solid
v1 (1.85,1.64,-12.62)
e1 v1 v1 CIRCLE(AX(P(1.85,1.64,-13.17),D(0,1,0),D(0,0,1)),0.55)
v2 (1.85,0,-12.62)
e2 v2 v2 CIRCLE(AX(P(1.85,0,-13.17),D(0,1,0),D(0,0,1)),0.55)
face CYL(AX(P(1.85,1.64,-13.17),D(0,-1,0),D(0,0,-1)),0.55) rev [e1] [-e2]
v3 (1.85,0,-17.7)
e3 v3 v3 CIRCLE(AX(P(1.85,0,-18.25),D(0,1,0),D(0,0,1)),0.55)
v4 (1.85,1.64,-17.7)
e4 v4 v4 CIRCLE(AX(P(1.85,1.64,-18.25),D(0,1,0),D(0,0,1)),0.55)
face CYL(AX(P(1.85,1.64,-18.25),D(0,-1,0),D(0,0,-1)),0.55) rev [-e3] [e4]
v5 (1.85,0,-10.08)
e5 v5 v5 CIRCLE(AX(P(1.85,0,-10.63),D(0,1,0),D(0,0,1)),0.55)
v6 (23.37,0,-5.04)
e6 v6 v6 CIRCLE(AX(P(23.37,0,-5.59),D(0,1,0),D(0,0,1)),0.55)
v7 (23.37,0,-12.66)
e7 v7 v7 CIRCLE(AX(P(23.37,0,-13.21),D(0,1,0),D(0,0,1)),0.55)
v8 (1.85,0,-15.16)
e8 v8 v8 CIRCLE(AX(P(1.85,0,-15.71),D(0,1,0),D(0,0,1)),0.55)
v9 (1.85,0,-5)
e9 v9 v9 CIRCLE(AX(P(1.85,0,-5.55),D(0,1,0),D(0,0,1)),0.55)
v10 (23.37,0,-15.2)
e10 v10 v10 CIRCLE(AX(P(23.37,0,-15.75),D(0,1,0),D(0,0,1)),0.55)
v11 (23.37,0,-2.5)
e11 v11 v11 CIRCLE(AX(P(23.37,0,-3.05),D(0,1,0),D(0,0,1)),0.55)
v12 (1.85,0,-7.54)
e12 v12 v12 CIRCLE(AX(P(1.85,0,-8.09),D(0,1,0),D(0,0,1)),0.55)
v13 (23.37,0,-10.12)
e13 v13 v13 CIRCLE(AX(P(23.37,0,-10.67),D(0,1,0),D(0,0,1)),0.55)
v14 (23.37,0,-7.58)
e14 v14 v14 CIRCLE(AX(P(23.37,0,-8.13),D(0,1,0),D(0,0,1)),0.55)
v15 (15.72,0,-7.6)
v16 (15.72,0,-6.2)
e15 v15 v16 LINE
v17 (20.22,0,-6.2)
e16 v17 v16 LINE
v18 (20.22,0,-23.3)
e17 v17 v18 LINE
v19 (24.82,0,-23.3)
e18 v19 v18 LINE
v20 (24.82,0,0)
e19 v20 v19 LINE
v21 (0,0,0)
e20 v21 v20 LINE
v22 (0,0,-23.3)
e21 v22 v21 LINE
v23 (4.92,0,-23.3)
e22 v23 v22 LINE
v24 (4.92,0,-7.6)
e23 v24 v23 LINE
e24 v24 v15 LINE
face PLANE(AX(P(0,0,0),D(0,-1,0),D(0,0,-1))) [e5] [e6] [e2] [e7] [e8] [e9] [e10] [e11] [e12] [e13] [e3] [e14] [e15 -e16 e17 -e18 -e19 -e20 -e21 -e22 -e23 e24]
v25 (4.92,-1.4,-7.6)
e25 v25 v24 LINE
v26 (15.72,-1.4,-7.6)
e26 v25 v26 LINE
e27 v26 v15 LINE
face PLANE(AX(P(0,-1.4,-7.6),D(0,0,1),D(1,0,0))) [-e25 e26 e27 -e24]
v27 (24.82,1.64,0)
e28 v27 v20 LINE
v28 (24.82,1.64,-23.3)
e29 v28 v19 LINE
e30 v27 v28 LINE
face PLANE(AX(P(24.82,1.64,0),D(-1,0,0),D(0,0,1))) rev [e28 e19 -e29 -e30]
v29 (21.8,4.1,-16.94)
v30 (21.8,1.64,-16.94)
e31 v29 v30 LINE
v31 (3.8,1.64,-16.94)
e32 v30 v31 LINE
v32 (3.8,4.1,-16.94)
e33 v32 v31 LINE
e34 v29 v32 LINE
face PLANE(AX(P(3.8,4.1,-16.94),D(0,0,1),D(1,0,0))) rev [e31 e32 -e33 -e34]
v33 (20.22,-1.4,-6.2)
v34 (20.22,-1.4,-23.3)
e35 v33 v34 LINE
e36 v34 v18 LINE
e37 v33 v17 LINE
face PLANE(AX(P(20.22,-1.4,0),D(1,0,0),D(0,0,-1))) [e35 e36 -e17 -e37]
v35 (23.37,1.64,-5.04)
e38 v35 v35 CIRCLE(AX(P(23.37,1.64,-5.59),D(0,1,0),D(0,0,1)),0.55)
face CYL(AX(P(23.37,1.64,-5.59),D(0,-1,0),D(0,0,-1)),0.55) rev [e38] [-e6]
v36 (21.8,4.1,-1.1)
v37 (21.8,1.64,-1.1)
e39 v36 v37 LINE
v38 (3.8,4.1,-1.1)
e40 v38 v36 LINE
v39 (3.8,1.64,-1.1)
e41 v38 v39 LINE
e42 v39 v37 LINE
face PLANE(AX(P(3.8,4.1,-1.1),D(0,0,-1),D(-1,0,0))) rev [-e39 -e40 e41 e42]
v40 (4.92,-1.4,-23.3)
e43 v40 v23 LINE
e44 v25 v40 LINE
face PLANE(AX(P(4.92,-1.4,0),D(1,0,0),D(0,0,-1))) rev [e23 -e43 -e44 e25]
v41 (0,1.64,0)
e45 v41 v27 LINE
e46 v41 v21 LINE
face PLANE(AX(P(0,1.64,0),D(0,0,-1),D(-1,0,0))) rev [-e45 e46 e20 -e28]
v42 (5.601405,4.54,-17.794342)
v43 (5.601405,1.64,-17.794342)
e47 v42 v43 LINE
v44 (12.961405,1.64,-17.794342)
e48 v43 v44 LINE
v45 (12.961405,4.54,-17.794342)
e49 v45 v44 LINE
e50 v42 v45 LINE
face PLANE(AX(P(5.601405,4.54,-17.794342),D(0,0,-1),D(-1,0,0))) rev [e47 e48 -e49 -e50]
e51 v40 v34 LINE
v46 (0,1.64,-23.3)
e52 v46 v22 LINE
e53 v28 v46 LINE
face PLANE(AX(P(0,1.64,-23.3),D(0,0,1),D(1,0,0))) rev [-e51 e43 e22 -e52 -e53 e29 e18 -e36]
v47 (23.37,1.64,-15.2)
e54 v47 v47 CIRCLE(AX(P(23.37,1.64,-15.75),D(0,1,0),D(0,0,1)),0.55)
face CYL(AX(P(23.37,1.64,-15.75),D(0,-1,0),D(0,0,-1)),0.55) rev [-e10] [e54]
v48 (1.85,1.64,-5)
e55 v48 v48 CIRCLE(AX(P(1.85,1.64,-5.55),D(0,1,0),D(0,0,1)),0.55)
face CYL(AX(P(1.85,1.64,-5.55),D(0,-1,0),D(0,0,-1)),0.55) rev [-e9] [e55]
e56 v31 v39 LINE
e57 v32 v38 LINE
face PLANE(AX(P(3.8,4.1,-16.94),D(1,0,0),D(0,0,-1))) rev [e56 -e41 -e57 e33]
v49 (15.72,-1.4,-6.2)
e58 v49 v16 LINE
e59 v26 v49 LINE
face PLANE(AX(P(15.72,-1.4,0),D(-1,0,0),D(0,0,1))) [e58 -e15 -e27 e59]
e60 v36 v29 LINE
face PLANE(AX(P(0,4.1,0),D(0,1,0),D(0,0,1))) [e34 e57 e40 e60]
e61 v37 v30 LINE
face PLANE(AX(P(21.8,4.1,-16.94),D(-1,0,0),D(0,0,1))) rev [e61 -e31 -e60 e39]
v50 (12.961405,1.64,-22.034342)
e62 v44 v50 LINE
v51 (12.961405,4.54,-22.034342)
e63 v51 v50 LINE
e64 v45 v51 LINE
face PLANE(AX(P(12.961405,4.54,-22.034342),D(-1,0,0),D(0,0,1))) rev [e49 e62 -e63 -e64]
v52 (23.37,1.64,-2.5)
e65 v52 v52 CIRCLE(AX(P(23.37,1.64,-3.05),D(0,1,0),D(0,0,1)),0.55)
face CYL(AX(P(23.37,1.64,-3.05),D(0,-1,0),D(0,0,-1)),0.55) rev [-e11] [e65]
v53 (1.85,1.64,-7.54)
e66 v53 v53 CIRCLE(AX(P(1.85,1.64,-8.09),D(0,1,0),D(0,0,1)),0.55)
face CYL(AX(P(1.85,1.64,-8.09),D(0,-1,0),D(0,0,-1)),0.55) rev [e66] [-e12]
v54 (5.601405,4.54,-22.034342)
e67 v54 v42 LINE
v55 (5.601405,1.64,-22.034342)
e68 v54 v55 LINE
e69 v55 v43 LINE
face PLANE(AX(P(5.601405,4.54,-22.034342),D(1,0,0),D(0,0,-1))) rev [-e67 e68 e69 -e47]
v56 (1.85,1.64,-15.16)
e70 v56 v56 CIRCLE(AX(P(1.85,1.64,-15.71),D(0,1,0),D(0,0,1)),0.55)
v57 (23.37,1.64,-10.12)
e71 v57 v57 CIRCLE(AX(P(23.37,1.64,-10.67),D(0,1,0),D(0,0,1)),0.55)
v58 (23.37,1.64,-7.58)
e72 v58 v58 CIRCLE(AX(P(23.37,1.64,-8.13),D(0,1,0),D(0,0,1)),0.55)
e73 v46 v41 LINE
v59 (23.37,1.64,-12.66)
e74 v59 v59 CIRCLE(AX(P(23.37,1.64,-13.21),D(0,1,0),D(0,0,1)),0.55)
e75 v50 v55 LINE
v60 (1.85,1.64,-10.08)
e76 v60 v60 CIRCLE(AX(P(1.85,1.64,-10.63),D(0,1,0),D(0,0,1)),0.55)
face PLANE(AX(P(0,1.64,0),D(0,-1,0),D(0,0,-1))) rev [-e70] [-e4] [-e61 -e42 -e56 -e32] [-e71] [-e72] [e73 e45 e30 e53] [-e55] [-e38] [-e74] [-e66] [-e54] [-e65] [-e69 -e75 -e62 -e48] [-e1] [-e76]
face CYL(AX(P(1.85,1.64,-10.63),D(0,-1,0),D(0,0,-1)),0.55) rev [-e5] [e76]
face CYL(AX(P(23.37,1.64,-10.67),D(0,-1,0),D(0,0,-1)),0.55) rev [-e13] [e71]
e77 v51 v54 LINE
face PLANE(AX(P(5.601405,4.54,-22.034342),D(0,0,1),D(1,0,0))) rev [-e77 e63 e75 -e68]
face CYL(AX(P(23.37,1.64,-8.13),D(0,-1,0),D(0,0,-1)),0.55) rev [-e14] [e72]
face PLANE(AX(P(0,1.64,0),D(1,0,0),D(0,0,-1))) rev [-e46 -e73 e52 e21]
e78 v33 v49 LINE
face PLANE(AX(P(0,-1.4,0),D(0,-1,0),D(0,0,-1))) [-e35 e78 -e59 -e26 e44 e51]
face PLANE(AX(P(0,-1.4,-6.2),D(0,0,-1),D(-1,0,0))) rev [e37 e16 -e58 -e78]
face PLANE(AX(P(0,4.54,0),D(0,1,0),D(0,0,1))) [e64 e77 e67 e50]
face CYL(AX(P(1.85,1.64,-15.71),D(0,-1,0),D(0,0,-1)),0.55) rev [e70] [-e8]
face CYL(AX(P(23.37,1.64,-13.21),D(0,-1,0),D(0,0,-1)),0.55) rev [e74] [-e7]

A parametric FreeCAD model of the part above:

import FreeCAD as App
import Part
import Sketcher

V = App.Vector


def add_polygon(sketch, points):
    """Adds a closed chain of lines whose ends are joined by coincident constraints."""
    first, n = sketch.GeometryCount, len(points)
    for a, b in zip(points, points[1:] + points[:1]):
        sketch.addGeometry(Part.LineSegment(App.Vector(*a, 0), App.Vector(*b, 0)), False)
    for i in range(n):
        sketch.addConstraint(Sketcher.Constraint("Coincident", first + i, 2, first + (i + 1) % n, 1))

doc = App.newDocument("Part")
params = doc.addObject("Spreadsheet::Sheet", "Params")
for row, (alias, value) in enumerate([
    ("sketch1_diameter", "1.1 mm"),
    ("sketch1_height", "23.3 mm"),
    ("sketch1_width", "24.82 mm"),
    ("pad1_length", "1.64 mm"),
    ("sketch2_width", "18 mm"),
    ("sketch2_height", "15.84 mm"),
    ("pad2_length", "2.46 mm"),
    ("sketch3_width", "7.36 mm"),
    ("sketch3_height", "4.24 mm"),
    ("pad3_length", "2.9 mm"),
    ("sketch4_width", "15.3 mm"),
    ("sketch4_width2", "4.5 mm"),
    ("sketch4_height", "15.7 mm"),
    ("sketch4_height2", "17.1 mm"),
    ("pad4_length", "1.4 mm"),
], start=1):
    params.set(f"A{row}", alias)
    params.set(f"B{row}", "=" + value)
    params.setAlias(f"B{row}", alias)

body = doc.addObject("PartDesign::Body", "Body")

# Sketch on XZ plane
sketch1 = body.newObject("Sketcher::SketchObject", "Sketch")
sketch1.AttachmentSupport = (doc.getObject("XZ_Plane"), [""])
sketch1.MapMode = "FlatFace"
add_polygon(sketch1, [(0, -23.3), (0, 0), (24.8, 0), (24.8, -23.3)])  # lines 0-3
sketch1.addGeometry(Part.Circle(V(1.9, -5.5, 0), V(0, 0, 1), 0.6), False)  # 4
sketch1.addGeometry(Part.Circle(V(1.9, -8.1, 0), V(0, 0, 1), 0.6), False)  # 5
sketch1.addGeometry(Part.Circle(V(1.9, -10.6, 0), V(0, 0, 1), 0.6), False)  # 6
sketch1.addGeometry(Part.Circle(V(23.4, -3, 0), V(0, 0, 1), 0.6), False)  # 7
sketch1.addGeometry(Part.Circle(V(23.4, -5.6, 0), V(0, 0, 1), 0.6), False)  # 8
sketch1.addGeometry(Part.Circle(V(23.4, -8.1, 0), V(0, 0, 1), 0.6), False)  # 9
sketch1.addGeometry(Part.Circle(V(1.9, -13.2, 0), V(0, 0, 1), 0.6), False)  # 10
sketch1.addGeometry(Part.Circle(V(1.9, -15.7, 0), V(0, 0, 1), 0.6), False)  # 11
sketch1.addGeometry(Part.Circle(V(1.9, -18.2, 0), V(0, 0, 1), 0.6), False)  # 12
sketch1.addGeometry(Part.Circle(V(23.4, -10.7, 0), V(0, 0, 1), 0.6), False)  # 13
sketch1.addGeometry(Part.Circle(V(23.4, -13.2, 0), V(0, 0, 1), 0.6), False)  # 14
sketch1.addGeometry(Part.Circle(V(23.4, -15.8, 0), V(0, 0, 1), 0.6), False)  # 15
sketch1.addConstraint([
    Sketcher.Constraint("Vertical", 0),
    Sketcher.Constraint("Horizontal", 1),
    Sketcher.Constraint("Vertical", 2),
    Sketcher.Constraint("Horizontal", 3),
    Sketcher.Constraint("Coincident", 0, 2, -1, 1),
    Sketcher.Constraint("Equal", 4, 5),
    Sketcher.Constraint("Equal", 5, 6),
    Sketcher.Constraint("Equal", 6, 7),
    Sketcher.Constraint("Equal", 7, 8),
    Sketcher.Constraint("Equal", 8, 9),
    Sketcher.Constraint("Equal", 9, 10),
    Sketcher.Constraint("Equal", 10, 11),
    Sketcher.Constraint("Equal", 11, 12),
    Sketcher.Constraint("Equal", 12, 13),
    Sketcher.Constraint("Equal", 13, 14),
    Sketcher.Constraint("Equal", 14, 15),
    Sketcher.Constraint("Vertical", 4, 3, 5, 3),
    Sketcher.Constraint("Vertical", 5, 3, 6, 3),
    Sketcher.Constraint("Vertical", 7, 3, 8, 3),
    Sketcher.Constraint("Vertical", 8, 3, 9, 3),
    Sketcher.Constraint("Vertical", 6, 3, 10, 3),
    Sketcher.Constraint("Vertical", 10, 3, 11, 3),
    Sketcher.Constraint("Vertical", 11, 3, 12, 3),
    Sketcher.Constraint("Vertical", 9, 3, 13, 3),
    Sketcher.Constraint("Vertical", 13, 3, 14, 3),
    Sketcher.Constraint("Vertical", 14, 3, 15, 3),
    Sketcher.Constraint("Diameter", 4, 1.1),
    Sketcher.Constraint("DistanceY", 0, 1, 0, 2, 23.3),
    Sketcher.Constraint("DistanceX", 1, 1, 1, 2, 24.82),
    Sketcher.Constraint("DistanceY", 4, 3, 7, 3, 2.5),
    Sketcher.Constraint("DistanceY", 5, 3, 8, 3, 2.5),
    Sketcher.Constraint("DistanceY", 6, 3, 9, 3, 2.5),
    Sketcher.Constraint("DistanceY", 12, 3, 4, 3, 12.7),
    Sketcher.Constraint("DistanceY", 10, 3, 13, 3, 2.5),
    Sketcher.Constraint("DistanceY", 15, 3, 7, 3, 12.7),
    Sketcher.Constraint("DistanceX", -1, 1, 4, 3, 1.85),
    Sketcher.Constraint("DistanceY", 4, 3, -1, 1, 5.55),
    Sketcher.Constraint("DistanceY", 5, 3, -1, 1, 8.09),
    Sketcher.Constraint("DistanceY", 6, 3, -1, 1, 10.63),
    Sketcher.Constraint("DistanceX", -1, 1, 7, 3, 23.37),
    Sketcher.Constraint("DistanceY", 10, 3, -1, 1, 13.17),
    Sketcher.Constraint("DistanceY", 11, 3, -1, 1, 15.71),
    Sketcher.Constraint("DistanceY", 14, 3, -1, 1, 13.21),
])
sketch1.setExpression("Constraints[30]", "Params.sketch1_diameter")
sketch1.setExpression("Constraints[31]", "Params.sketch1_height")
sketch1.setExpression("Constraints[32]", "Params.sketch1_width")
pad1 = body.newObject("PartDesign::Pad", "Pad")
pad1.Profile = sketch1
pad1.setExpression("Length", "Params.pad1_length")
pad1.Reversed = True

# Sketch on XZ plane
sketch2 = body.newObject("Sketcher::SketchObject", "Sketch001")
sketch2.AttachmentSupport = (doc.getObject("XZ_Plane"), [""])
sketch2.MapMode = "FlatFace"
sketch2.AttachmentOffset = App.Placement(V(0, 0, -1.64), App.Rotation())
add_polygon(sketch2, [(4, -17), (4, -1), (22, -1), (22, -17)])  # lines 0-3
sketch2.addConstraint([
    Sketcher.Constraint("Vertical", 0),
    Sketcher.Constraint("Horizontal", 1),
    Sketcher.Constraint("Vertical", 2),
    Sketcher.Constraint("Horizontal", 3),
    Sketcher.Constraint("DistanceX", 1, 1, 1, 2, 18.0),
    Sketcher.Constraint("DistanceY", 0, 1, 0, 2, 15.84),
    Sketcher.Constraint("DistanceX", -1, 1, 0, 2, 3.8),
    Sketcher.Constraint("DistanceY", 0, 2, -1, 1, 1.1),
])
sketch2.setExpression("Constraints[8]", "Params.sketch2_width")
sketch2.setExpression("Constraints[9]", "Params.sketch2_height")
pad2 = body.newObject("PartDesign::Pad", "Pad001")
pad2.Profile = sketch2
pad2.setExpression("Length", "Params.pad2_length")
pad2.Reversed = True

# Sketch on XZ plane
sketch3 = body.newObject("Sketcher::SketchObject", "Sketch002")
sketch3.AttachmentSupport = (doc.getObject("XZ_Plane"), [""])
sketch3.MapMode = "FlatFace"
sketch3.AttachmentOffset = App.Placement(V(0, 0, -1.64), App.Rotation())
add_polygon(sketch3, [(5.6, -22), (5.6, -17.8), (13, -17.8), (13, -22)])  # lines 0-3
sketch3.addConstraint([
    Sketcher.Constraint("Vertical", 0),
    Sketcher.Constraint("Horizontal", 1),
    Sketcher.Constraint("Vertical", 2),
    Sketcher.Constraint("Horizontal", 3),
    Sketcher.Constraint("DistanceX", 1, 1, 1, 2, 7.36),
    Sketcher.Constraint("DistanceY", 0, 1, 0, 2, 4.24),
    Sketcher.Constraint("DistanceY", 0, 2, -1, 1, 17.794342),
    Sketcher.Constraint("DistanceX", -1, 1, 0, 2, 5.601405),
])
sketch3.setExpression("Constraints[8]", "Params.sketch3_width")
sketch3.setExpression("Constraints[9]", "Params.sketch3_height")
pad3 = body.newObject("PartDesign::Pad", "Pad002")
pad3.Profile = sketch3
pad3.setExpression("Length", "Params.pad3_length")
pad3.Reversed = True

# Sketch on XZ plane
sketch4 = body.newObject("Sketcher::SketchObject", "Sketch003")
sketch4.AttachmentSupport = (doc.getObject("XZ_Plane"), [""])
sketch4.MapMode = "FlatFace"
add_polygon(sketch4, [(4.9, -7.6), (4.9, -23.3), (20.2, -23.3), (20.2, -6.2), (15.7, -6.2), (15.7, -7.6)])  # lines 0-5
sketch4.addConstraint([
    Sketcher.Constraint("Vertical", 0),
    Sketcher.Constraint("Horizontal", 1),
    Sketcher.Constraint("Vertical", 2),
    Sketcher.Constraint("Horizontal", 3),
    Sketcher.Constraint("Vertical", 4),
    Sketcher.Constraint("Horizontal", 5),
    Sketcher.Constraint("DistanceX", 1, 1, 1, 2, 15.3),
    Sketcher.Constraint("DistanceX", 3, 2, 3, 1, 4.5),
    Sketcher.Constraint("DistanceY", 0, 2, 0, 1, 15.7),
    Sketcher.Constraint("DistanceY", 2, 1, 2, 2, 17.1),
    Sketcher.Constraint("DistanceY", 0, 2, -1, 1, 23.3),
    Sketcher.Constraint("DistanceX", -1, 1, 0, 2, 4.92),
])
sketch4.setExpression("Constraints[12]", "Params.sketch4_width")
sketch4.setExpression("Constraints[13]", "Params.sketch4_width2")
sketch4.setExpression("Constraints[14]", "Params.sketch4_height")
sketch4.setExpression("Constraints[15]", "Params.sketch4_height2")
pad4 = body.newObject("PartDesign::Pad", "Pad003")
pad4.Profile = sketch4
pad4.setExpression("Length", "Params.pad4_length")

doc.recompute()
